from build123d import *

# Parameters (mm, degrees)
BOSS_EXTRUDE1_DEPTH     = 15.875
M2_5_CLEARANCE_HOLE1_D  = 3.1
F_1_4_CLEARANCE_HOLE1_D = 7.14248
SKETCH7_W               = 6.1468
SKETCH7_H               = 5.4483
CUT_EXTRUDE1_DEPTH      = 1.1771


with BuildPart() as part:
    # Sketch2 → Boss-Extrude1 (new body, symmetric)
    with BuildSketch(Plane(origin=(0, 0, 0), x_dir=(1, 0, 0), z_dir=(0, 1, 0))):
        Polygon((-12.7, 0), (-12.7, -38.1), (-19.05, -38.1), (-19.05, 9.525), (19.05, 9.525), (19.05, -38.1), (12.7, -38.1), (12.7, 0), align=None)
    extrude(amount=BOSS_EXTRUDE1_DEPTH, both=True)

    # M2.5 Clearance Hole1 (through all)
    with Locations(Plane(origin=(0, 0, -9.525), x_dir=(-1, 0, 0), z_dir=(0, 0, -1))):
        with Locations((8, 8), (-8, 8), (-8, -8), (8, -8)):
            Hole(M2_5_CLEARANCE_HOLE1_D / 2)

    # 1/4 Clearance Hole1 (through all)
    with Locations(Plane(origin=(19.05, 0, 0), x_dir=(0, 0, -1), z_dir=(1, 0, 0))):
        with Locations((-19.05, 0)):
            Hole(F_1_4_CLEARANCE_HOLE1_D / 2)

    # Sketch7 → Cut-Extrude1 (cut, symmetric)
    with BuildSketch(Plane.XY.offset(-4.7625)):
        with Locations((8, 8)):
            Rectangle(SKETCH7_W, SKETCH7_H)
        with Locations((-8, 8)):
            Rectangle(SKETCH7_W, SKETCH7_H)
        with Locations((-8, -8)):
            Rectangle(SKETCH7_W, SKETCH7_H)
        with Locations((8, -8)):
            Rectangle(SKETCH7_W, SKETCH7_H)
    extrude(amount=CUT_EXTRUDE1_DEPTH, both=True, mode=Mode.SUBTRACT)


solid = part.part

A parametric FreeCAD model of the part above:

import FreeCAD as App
import Part
import Sketcher

V = App.Vector
Q = App.Units.Quantity

doc = App.newDocument("Part")
params = doc.addObject("Spreadsheet::Sheet", "Params")
for row, (alias, value) in enumerate([
    ("sketch1_width", "1 in"),
    ("sketch1_width2", "1.5 in"),
    ("sketch1_height", "1.875 in"),
    ("pad1_length", "1.25 in"),
    ("hole_diameter", "3.1 mm"),
    ("hole2_diameter", "0.2812 in"),
    ("sketch4_width", "0.242 in"),
    ("pocket1_length", "2.3542 mm"),
], start=1):
    params.set(f"A{row}", alias)
    params.set(f"B{row}", "=" + value)
    params.setAlias(f"B{row}", alias)

body = doc.addObject("PartDesign::Body", "Body")

# Sketch on XZ plane
sketch1 = body.newObject("Sketcher::SketchObject", "Sketch")
sketch1.AttachmentSupport = (doc.getObject("XZ_Plane"), [""])
sketch1.MapMode = "FlatFace"
sketch1.addGeometry([
    Part.LineSegment(V(-13, 38, 0), V(-13, 0, 0)),  # 0
    Part.LineSegment(V(-13, 0, 0), V(13, 0, 0)),  # 1
    Part.LineSegment(V(13, 0, 0), V(13, 38, 0)),  # 2
    Part.LineSegment(V(13, 38, 0), V(19, 38, 0)),  # 3
    Part.LineSegment(V(19, 38, 0), V(19, -10, 0)),  # 4
    Part.LineSegment(V(19, -10, 0), V(-19, -10, 0)),  # 5
    Part.LineSegment(V(-19, -10, 0), V(-19, 38, 0)),  # 6
    Part.LineSegment(V(-19, 38, 0), V(-13, 38, 0)),  # 7
], False)
sketch1.addConstraint([
    Sketcher.Constraint("Coincident", 0, 2, 1, 1),
    Sketcher.Constraint("Coincident", 1, 2, 2, 1),
    Sketcher.Constraint("Coincident", 2, 2, 3, 1),
    Sketcher.Constraint("Coincident", 3, 2, 4, 1),
    Sketcher.Constraint("Coincident", 4, 2, 5, 1),
    Sketcher.Constraint("Coincident", 5, 2, 6, 1),
    Sketcher.Constraint("Coincident", 6, 2, 7, 1),
    Sketcher.Constraint("Coincident", 7, 2, 0, 1),
    Sketcher.Constraint("Vertical", 0),
    Sketcher.Constraint("Horizontal", 1),
    Sketcher.Constraint("Vertical", 2),
    Sketcher.Constraint("Horizontal", 3),
    Sketcher.Constraint("Vertical", 4),
    Sketcher.Constraint("Horizontal", 5),
    Sketcher.Constraint("Vertical", 6),
    Sketcher.Constraint("Horizontal", 7),
    Sketcher.Constraint("Symmetric", 0, 2, 1, 2, -1, 1),
    Sketcher.Constraint("Symmetric", 3, 2, 6, 2, -2),
    Sketcher.Constraint("Equal", 5, 0),
    Sketcher.Constraint("DistanceX", 1, 1, 1, 2, Q("1 in")),
    Sketcher.Constraint("DistanceX", 5, 2, 5, 1, Q("1.5 in")),
    Sketcher.Constraint("DistanceY", 4, 2, 4, 1, Q("1.875 in")),
])
sketch1.setExpression("Constraints[19]", "Params.sketch1_width")
sketch1.setExpression("Constraints[20]", "Params.sketch1_width2")
sketch1.setExpression("Constraints[21]", "Params.sketch1_height")
pad1 = body.newObject("PartDesign::Pad", "Pad")
pad1.Profile = sketch1
pad1.setExpression("Length", "Params.pad1_length")
pad1.Midplane = True

# Sketch on XY plane
sketch2 = body.newObject("Sketcher::SketchObject", "Sketch001")
sketch2.AttachmentSupport = (doc.getObject("XY_Plane"), [""])
sketch2.MapMode = "FlatFace"
sketch2.AttachmentOffset = App.Placement(V(0, 0, -0.375 * 25.4), App.Rotation())
sketch2.addGeometry([
    Part.Circle(V(-8, 8, 0), V(0, 0, 1), 1.6),
    Part.Circle(V(8, 8, 0), V(0, 0, 1), 1.6),
    Part.Circle(V(8, -8, 0), V(0, 0, 1), 1.6),
    Part.Circle(V(-8, -8, 0), V(0, 0, 1), 1.6),
], False)
sketch2.addConstraint([
    Sketcher.Constraint("Equal", 0, 1),
    Sketcher.Constraint("Equal", 1, 2),
    Sketcher.Constraint("Equal", 2, 3),
    Sketcher.Constraint("Symmetric", 0, 3, 2, 3, -1, 1),
    Sketcher.Constraint("Symmetric", 1, 3, 3, 3, -1, 1),
    Sketcher.Constraint("Symmetric", 0, 3, 1, 3, -2),
    Sketcher.Constraint("Diameter", 0, 3.1),
    Sketcher.Constraint("DistanceX", 0, 3, -1, 1, 8.0),
    Sketcher.Constraint("DistanceY", -1, 1, 0, 3, 8.0),
])
doc.recompute()
hole = body.newObject("PartDesign::Hole", "Hole")
hole.Profile = sketch2
hole.ThreadType = "None"
hole.setExpression("Diameter", "Params.hole_diameter")
hole.DepthType = "ThroughAll"
hole.Reversed = True

# Sketch on YZ plane
sketch3 = body.newObject("Sketcher::SketchObject", "Sketch002")
sketch3.AttachmentSupport = (doc.getObject("YZ_Plane"), [""])
sketch3.MapMode = "FlatFace"
sketch3.AttachmentOffset = App.Placement(V(0, 0, 0.75 * 25.4), App.Rotation())
sketch3.addGeometry(Part.Circle(V(0, 19.1, 0), V(0, 0, 1), 3.6), False)
sketch3.addConstraint([
    Sketcher.Constraint("PointOnObject", 0, 3, -2),
    Sketcher.Constraint("Diameter", 0, Q("0.2812 in")),
    Sketcher.Constraint("DistanceY", -1, 1, 0, 3, Q("0.75 in")),
])
doc.recompute()
hole2 = body.newObject("PartDesign::Hole", "Hole001")
hole2.Profile = sketch3
hole2.ThreadType = "None"
hole2.setExpression("Diameter", "Params.hole2_diameter")
hole2.DepthType = "ThroughAll"

# Sketch on XY plane
sketch4 = body.newObject("Sketcher::SketchObject", "Sketch003")
sketch4.AttachmentSupport = (doc.getObject("XY_Plane"), [""])
sketch4.MapMode = "FlatFace"
sketch4.AttachmentOffset = App.Placement(V(0, 0, -0.1875 * 25.4), App.Rotation())
sketch4.addGeometry([
    Part.LineSegment(V(5, 11, 0), V(5, 5, 0)),  # 0
    Part.LineSegment(V(5, 5, 0), V(11, 5, 0)),  # 1
    Part.LineSegment(V(11, 5, 0), V(11, 11, 0)),  # 2
    Part.LineSegment(V(11, 11, 0), V(5, 11, 0)),  # 3
    Part.LineSegment(V(-11, 11, 0), V(-11, 5, 0)),  # 4
    Part.LineSegment(V(-11, 5, 0), V(-5, 5, 0)),  # 5
    Part.LineSegment(V(-5, 5, 0), V(-5, 11, 0)),  # 6
    Part.LineSegment(V(-5, 11, 0), V(-11, 11, 0)),  # 7
    Part.LineSegment(V(-11, -5, 0), V(-11, -11, 0)),  # 8
    Part.LineSegment(V(-11, -11, 0), V(-5, -11, 0)),  # 9
    Part.LineSegment(V(-5, -11, 0), V(-5, -5, 0)),  # 10
    Part.LineSegment(V(-5, -5, 0), V(-11, -5, 0)),  # 11
    Part.LineSegment(V(5, -5, 0), V(5, -11, 0)),  # 12
    Part.LineSegment(V(5, -11, 0), V(11, -11, 0)),  # 13
    Part.LineSegment(V(11, -11, 0), V(11, -5, 0)),  # 14
    Part.LineSegment(V(11, -5, 0), V(5, -5, 0)),  # 15
], False)
sketch4.addConstraint([
    Sketcher.Constraint("Coincident", 0, 2, 1, 1),
    Sketcher.Constraint("Coincident", 1, 2, 2, 1),
    Sketcher.Constraint("Coincident", 2, 2, 3, 1),
    Sketcher.Constraint("Coincident", 3, 2, 0, 1),
    Sketcher.Constraint("Coincident", 4, 2, 5, 1),
    Sketcher.Constraint("Coincident", 5, 2, 6, 1),
    Sketcher.Constraint("Coincident", 6, 2, 7, 1),
    Sketcher.Constraint("Coincident", 7, 2, 4, 1),
    Sketcher.Constraint("Coincident", 8, 2, 9, 1),
    Sketcher.Constraint("Coincident", 9, 2, 10, 1),
    Sketcher.Constraint("Coincident", 10, 2, 11, 1),
    Sketcher.Constraint("Coincident", 11, 2, 8, 1),
    Sketcher.Constraint("Coincident", 12, 2, 13, 1),
    Sketcher.Constraint("Coincident", 13, 2, 14, 1),
    Sketcher.Constraint("Coincident", 14, 2, 15, 1),
    Sketcher.Constraint("Coincident", 15, 2, 12, 1),
    Sketcher.Constraint("Vertical", 0),
    Sketcher.Constraint("Horizontal", 1),
    Sketcher.Constraint("Vertical", 2),
    Sketcher.Constraint("Horizontal", 3),
    Sketcher.Constraint("Vertical", 4),
    Sketcher.Constraint("Horizontal", 5),
    Sketcher.Constraint("Vertical", 6),
    Sketcher.Constraint("Horizontal", 7),
    Sketcher.Constraint("Vertical", 8),
    Sketcher.Constraint("Horizontal", 9),
    Sketcher.Constraint("Vertical", 10),
    Sketcher.Constraint("Horizontal", 11),
    Sketcher.Constraint("Vertical", 12),
    Sketcher.Constraint("Horizontal", 13),
    Sketcher.Constraint("Vertical", 14),
    Sketcher.Constraint("Horizontal", 15),
    Sketcher.Constraint("Symmetric", 2, 2, 8, 2, -1, 1),
    Sketcher.Constraint("Symmetric", 0, 2, 10, 2, -1, 1),
    Sketcher.Constraint("Symmetric", 6, 2, 12, 2, -1, 1),
    Sketcher.Constraint("Symmetric", 4, 2, 14, 2, -1, 1),
    Sketcher.Constraint("Symmetric", 1, 2, 4, 2, -2),
    Sketcher.Constraint("Symmetric", 3, 2, 6, 2, -2),
    Sketcher.Constraint("DistanceX", 1, 1, 1, 2, Q("0.242 in")),
    Sketcher.Constraint("DistanceY", 0, 2, 0, 1, Q("0.2145 in")),
    Sketcher.Constraint("DistanceX", -1, 1, 0, 2, 4.9266),
    Sketcher.Constraint("DistanceY", 8, 2, 4, 2, 16.0),
])
sketch4.setExpression("Constraints[38]", "Params.sketch4_width")
pocket1 = body.newObject("PartDesign::Pocket", "Pocket")
pocket1.Profile = sketch4
pocket1.setExpression("Length", "Params.pocket1_length")
pocket1.Midplane = True

doc.recompute()
